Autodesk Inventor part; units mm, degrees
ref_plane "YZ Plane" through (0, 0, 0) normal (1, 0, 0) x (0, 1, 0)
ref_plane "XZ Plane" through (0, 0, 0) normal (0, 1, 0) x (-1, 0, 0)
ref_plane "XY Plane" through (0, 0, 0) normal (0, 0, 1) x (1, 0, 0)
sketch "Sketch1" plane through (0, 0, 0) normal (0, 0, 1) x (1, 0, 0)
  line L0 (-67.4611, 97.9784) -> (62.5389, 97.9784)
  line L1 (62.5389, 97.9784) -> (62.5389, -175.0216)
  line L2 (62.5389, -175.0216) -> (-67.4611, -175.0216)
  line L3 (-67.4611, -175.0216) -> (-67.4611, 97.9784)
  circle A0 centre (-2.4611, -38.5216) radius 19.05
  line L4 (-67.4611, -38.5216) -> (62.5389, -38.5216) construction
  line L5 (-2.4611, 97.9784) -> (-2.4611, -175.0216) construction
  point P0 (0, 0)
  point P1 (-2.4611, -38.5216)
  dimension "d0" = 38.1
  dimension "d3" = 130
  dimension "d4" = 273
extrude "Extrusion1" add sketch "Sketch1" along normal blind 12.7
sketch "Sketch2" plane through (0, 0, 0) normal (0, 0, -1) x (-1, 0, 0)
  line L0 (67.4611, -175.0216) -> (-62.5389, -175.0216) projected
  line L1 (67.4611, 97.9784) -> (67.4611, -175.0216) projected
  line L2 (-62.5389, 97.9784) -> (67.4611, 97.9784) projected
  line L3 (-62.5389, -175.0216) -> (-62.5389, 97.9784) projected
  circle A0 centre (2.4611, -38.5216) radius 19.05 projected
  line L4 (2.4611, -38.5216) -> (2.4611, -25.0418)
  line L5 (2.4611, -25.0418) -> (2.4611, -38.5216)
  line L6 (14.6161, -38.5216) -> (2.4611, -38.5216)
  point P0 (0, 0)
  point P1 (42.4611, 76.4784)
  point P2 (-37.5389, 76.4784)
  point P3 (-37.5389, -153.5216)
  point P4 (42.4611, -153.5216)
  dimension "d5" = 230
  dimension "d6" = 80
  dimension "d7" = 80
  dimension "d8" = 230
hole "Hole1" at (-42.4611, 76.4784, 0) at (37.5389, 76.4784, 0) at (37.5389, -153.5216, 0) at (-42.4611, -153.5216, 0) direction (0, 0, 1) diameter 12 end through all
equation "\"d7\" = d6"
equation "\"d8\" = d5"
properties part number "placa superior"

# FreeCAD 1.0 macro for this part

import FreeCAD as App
import Part
import Sketcher

V = App.Vector
Q = App.Units.Quantity

doc = App.newDocument("Part")
params = doc.addObject("Spreadsheet::Sheet", "Params")
for row, (alias, value) in enumerate([
    ("sketch1_diameter", "38.1 mm"),
    ("sketch1_width", "130 mm"),
    ("sketch1_height", "273 mm"),
    ("pad1_length", "12.7 mm"),
    ("sketch2_diameter", "12 mm"),
    ("hole_diameter", "12 mm"),
], start=1):
    params.set(f"A{row}", alias)
    params.set(f"B{row}", "=" + value)
    params.setAlias(f"B{row}", alias)

body = doc.addObject("PartDesign::Body", "Body")

sketch1 = doc.addObject("Sketcher::SketchObject", "Sketch")
body.addObject(sketch1)
sketch1.AttachmentSupport = (doc.XY_Plane, [""])
sketch1.MapMode = "FlatFace"
sketch1.addGeometry([
    Part.LineSegment(V(62.5389, 97.9784, 0), V(-67.4611, 97.9784, 0)),
    Part.LineSegment(V(-67.4611, 97.9784, 0), V(-67.4611, -175.0216, 0)),
    Part.LineSegment(V(-67.4611, -175.0216, 0), V(62.5389, -175.0216, 0)),
    Part.LineSegment(V(62.5389, -175.0216, 0), V(62.5389, 97.9784, 0)),
    Part.Circle(V(-2.4611, -38.5216, 0), V(0, 0, 1), 19.05),
], False)
sketch1.addConstraint([
    Sketcher.Constraint("Coincident", 0, 2, 1, 1),
    Sketcher.Constraint("Coincident", 1, 2, 2, 1),
    Sketcher.Constraint("Coincident", 2, 2, 3, 1),
    Sketcher.Constraint("Coincident", 3, 2, 0, 1),
    Sketcher.Constraint("Horizontal", 0),
    Sketcher.Constraint("Vertical", 1),
    Sketcher.Constraint("Horizontal", 2),
    Sketcher.Constraint("Vertical", 3),
    Sketcher.Constraint("Diameter", 4, Q("38.1 mm")),
    Sketcher.Constraint("DistanceX", 0, 2, 0, 1, Q("130 mm")),
    Sketcher.Constraint("DistanceY", 1, 2, 1, 1, Q("273 mm")),
    Sketcher.Constraint("DistanceX", 0, 2, 4, 3, Q("65 mm")),
    Sketcher.Constraint("DistanceY", 4, 3, 0, 2, Q("136.5 mm")),
    Sketcher.Constraint("DistanceX", 4, 3, -1, 1, Q("2.461 mm")),
    Sketcher.Constraint("DistanceY", 4, 3, -1, 1, Q("38.5216 mm")),
])
sketch1.setExpression("Constraints[8]", "Params.sketch1_diameter")
sketch1.setExpression("Constraints[9]", "Params.sketch1_width")
sketch1.setExpression("Constraints[10]", "Params.sketch1_height")
pad1 = doc.addObject("PartDesign::Pad", "Pad")
body.addObject(pad1)
pad1.Profile = sketch1
pad1.setExpression("Length", "Params.pad1_length")

sketch2 = doc.addObject("Sketcher::SketchObject", "Sketch001")
body.addObject(sketch2)
sketch2.AttachmentSupport = (doc.XY_Plane, [""])
sketch2.MapMode = "FlatFace"
sketch2.addGeometry([
    Part.Circle(V(-42.4611, 76.4784, 0), V(0, 0, 1), 6),
    Part.Circle(V(37.5389, 76.4784, 0), V(0, 0, 1), 6),
    Part.Circle(V(37.5389, -153.5216, 0), V(0, 0, 1), 6),
    Part.Circle(V(-42.4611, -153.5216, 0), V(0, 0, 1), 6),
], False)
sketch2.addConstraint([
    Sketcher.Constraint("Equal", 0, 1),
    Sketcher.Constraint("Equal", 1, 2),
    Sketcher.Constraint("Equal", 2, 3),
    Sketcher.Constraint("Horizontal", 0, 3, 1, 3),
    Sketcher.Constraint("Horizontal", 2, 3, 3, 3),
    Sketcher.Constraint("Vertical", 1, 3, 2, 3),
    Sketcher.Constraint("Vertical", 0, 3, 3, 3),
    Sketcher.Constraint("Diameter", 0, Q("12 mm")),
    Sketcher.Constraint("DistanceX", 0, 3, 1, 3, Q("80 mm")),
    Sketcher.Constraint("DistanceY", 2, 3, 1, 3, Q("230 mm")),
    Sketcher.Constraint("DistanceX", 0, 3, -1, 1, Q("42.461 mm")),
    Sketcher.Constraint("DistanceY", -1, 1, 0, 3, Q("76.4784 mm")),
])
sketch2.setExpression("Constraints[7]", "Params.sketch2_diameter")
doc.recompute()
hole = doc.addObject("PartDesign::Hole", "Hole")
body.addObject(hole)
hole.Profile = sketch2
hole.ThreadType = "None"
hole.setExpression("Diameter", "Params.hole_diameter")
hole.DepthType = "ThroughAll"
hole.Reversed = True

doc.recompute()
